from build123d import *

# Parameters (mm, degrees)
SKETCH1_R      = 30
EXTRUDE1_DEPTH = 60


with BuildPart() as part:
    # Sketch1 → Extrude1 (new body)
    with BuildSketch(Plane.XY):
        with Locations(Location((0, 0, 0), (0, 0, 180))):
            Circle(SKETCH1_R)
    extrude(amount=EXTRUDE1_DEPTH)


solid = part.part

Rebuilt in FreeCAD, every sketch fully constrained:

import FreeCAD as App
import Part
import Sketcher
from FreeCAD import Vector

doc = App.newDocument("Part")
body = doc.addObject("PartDesign::Body", "Body")

# Sketch on XY plane
sketch1 = body.newObject("Sketcher::SketchObject", "Sketch")
sketch1.AttachmentSupport = (doc.getObject("XY_Plane"), [""])
sketch1.MapMode = "FlatFace"
sketch1.addGeometry(Part.Circle(Vector(0, 0, 0), Vector(0, 0, 1), 30), False)
sketch1.addConstraint(Sketcher.Constraint("Coincident", 0, 3, -1, 1))
sketch1.addConstraint(Sketcher.Constraint("Diameter", 0, 60.0))
pad1 = body.newObject("PartDesign::Pad", "Pad")
pad1.Profile = sketch1
pad1.Length = 60

doc.recompute()
